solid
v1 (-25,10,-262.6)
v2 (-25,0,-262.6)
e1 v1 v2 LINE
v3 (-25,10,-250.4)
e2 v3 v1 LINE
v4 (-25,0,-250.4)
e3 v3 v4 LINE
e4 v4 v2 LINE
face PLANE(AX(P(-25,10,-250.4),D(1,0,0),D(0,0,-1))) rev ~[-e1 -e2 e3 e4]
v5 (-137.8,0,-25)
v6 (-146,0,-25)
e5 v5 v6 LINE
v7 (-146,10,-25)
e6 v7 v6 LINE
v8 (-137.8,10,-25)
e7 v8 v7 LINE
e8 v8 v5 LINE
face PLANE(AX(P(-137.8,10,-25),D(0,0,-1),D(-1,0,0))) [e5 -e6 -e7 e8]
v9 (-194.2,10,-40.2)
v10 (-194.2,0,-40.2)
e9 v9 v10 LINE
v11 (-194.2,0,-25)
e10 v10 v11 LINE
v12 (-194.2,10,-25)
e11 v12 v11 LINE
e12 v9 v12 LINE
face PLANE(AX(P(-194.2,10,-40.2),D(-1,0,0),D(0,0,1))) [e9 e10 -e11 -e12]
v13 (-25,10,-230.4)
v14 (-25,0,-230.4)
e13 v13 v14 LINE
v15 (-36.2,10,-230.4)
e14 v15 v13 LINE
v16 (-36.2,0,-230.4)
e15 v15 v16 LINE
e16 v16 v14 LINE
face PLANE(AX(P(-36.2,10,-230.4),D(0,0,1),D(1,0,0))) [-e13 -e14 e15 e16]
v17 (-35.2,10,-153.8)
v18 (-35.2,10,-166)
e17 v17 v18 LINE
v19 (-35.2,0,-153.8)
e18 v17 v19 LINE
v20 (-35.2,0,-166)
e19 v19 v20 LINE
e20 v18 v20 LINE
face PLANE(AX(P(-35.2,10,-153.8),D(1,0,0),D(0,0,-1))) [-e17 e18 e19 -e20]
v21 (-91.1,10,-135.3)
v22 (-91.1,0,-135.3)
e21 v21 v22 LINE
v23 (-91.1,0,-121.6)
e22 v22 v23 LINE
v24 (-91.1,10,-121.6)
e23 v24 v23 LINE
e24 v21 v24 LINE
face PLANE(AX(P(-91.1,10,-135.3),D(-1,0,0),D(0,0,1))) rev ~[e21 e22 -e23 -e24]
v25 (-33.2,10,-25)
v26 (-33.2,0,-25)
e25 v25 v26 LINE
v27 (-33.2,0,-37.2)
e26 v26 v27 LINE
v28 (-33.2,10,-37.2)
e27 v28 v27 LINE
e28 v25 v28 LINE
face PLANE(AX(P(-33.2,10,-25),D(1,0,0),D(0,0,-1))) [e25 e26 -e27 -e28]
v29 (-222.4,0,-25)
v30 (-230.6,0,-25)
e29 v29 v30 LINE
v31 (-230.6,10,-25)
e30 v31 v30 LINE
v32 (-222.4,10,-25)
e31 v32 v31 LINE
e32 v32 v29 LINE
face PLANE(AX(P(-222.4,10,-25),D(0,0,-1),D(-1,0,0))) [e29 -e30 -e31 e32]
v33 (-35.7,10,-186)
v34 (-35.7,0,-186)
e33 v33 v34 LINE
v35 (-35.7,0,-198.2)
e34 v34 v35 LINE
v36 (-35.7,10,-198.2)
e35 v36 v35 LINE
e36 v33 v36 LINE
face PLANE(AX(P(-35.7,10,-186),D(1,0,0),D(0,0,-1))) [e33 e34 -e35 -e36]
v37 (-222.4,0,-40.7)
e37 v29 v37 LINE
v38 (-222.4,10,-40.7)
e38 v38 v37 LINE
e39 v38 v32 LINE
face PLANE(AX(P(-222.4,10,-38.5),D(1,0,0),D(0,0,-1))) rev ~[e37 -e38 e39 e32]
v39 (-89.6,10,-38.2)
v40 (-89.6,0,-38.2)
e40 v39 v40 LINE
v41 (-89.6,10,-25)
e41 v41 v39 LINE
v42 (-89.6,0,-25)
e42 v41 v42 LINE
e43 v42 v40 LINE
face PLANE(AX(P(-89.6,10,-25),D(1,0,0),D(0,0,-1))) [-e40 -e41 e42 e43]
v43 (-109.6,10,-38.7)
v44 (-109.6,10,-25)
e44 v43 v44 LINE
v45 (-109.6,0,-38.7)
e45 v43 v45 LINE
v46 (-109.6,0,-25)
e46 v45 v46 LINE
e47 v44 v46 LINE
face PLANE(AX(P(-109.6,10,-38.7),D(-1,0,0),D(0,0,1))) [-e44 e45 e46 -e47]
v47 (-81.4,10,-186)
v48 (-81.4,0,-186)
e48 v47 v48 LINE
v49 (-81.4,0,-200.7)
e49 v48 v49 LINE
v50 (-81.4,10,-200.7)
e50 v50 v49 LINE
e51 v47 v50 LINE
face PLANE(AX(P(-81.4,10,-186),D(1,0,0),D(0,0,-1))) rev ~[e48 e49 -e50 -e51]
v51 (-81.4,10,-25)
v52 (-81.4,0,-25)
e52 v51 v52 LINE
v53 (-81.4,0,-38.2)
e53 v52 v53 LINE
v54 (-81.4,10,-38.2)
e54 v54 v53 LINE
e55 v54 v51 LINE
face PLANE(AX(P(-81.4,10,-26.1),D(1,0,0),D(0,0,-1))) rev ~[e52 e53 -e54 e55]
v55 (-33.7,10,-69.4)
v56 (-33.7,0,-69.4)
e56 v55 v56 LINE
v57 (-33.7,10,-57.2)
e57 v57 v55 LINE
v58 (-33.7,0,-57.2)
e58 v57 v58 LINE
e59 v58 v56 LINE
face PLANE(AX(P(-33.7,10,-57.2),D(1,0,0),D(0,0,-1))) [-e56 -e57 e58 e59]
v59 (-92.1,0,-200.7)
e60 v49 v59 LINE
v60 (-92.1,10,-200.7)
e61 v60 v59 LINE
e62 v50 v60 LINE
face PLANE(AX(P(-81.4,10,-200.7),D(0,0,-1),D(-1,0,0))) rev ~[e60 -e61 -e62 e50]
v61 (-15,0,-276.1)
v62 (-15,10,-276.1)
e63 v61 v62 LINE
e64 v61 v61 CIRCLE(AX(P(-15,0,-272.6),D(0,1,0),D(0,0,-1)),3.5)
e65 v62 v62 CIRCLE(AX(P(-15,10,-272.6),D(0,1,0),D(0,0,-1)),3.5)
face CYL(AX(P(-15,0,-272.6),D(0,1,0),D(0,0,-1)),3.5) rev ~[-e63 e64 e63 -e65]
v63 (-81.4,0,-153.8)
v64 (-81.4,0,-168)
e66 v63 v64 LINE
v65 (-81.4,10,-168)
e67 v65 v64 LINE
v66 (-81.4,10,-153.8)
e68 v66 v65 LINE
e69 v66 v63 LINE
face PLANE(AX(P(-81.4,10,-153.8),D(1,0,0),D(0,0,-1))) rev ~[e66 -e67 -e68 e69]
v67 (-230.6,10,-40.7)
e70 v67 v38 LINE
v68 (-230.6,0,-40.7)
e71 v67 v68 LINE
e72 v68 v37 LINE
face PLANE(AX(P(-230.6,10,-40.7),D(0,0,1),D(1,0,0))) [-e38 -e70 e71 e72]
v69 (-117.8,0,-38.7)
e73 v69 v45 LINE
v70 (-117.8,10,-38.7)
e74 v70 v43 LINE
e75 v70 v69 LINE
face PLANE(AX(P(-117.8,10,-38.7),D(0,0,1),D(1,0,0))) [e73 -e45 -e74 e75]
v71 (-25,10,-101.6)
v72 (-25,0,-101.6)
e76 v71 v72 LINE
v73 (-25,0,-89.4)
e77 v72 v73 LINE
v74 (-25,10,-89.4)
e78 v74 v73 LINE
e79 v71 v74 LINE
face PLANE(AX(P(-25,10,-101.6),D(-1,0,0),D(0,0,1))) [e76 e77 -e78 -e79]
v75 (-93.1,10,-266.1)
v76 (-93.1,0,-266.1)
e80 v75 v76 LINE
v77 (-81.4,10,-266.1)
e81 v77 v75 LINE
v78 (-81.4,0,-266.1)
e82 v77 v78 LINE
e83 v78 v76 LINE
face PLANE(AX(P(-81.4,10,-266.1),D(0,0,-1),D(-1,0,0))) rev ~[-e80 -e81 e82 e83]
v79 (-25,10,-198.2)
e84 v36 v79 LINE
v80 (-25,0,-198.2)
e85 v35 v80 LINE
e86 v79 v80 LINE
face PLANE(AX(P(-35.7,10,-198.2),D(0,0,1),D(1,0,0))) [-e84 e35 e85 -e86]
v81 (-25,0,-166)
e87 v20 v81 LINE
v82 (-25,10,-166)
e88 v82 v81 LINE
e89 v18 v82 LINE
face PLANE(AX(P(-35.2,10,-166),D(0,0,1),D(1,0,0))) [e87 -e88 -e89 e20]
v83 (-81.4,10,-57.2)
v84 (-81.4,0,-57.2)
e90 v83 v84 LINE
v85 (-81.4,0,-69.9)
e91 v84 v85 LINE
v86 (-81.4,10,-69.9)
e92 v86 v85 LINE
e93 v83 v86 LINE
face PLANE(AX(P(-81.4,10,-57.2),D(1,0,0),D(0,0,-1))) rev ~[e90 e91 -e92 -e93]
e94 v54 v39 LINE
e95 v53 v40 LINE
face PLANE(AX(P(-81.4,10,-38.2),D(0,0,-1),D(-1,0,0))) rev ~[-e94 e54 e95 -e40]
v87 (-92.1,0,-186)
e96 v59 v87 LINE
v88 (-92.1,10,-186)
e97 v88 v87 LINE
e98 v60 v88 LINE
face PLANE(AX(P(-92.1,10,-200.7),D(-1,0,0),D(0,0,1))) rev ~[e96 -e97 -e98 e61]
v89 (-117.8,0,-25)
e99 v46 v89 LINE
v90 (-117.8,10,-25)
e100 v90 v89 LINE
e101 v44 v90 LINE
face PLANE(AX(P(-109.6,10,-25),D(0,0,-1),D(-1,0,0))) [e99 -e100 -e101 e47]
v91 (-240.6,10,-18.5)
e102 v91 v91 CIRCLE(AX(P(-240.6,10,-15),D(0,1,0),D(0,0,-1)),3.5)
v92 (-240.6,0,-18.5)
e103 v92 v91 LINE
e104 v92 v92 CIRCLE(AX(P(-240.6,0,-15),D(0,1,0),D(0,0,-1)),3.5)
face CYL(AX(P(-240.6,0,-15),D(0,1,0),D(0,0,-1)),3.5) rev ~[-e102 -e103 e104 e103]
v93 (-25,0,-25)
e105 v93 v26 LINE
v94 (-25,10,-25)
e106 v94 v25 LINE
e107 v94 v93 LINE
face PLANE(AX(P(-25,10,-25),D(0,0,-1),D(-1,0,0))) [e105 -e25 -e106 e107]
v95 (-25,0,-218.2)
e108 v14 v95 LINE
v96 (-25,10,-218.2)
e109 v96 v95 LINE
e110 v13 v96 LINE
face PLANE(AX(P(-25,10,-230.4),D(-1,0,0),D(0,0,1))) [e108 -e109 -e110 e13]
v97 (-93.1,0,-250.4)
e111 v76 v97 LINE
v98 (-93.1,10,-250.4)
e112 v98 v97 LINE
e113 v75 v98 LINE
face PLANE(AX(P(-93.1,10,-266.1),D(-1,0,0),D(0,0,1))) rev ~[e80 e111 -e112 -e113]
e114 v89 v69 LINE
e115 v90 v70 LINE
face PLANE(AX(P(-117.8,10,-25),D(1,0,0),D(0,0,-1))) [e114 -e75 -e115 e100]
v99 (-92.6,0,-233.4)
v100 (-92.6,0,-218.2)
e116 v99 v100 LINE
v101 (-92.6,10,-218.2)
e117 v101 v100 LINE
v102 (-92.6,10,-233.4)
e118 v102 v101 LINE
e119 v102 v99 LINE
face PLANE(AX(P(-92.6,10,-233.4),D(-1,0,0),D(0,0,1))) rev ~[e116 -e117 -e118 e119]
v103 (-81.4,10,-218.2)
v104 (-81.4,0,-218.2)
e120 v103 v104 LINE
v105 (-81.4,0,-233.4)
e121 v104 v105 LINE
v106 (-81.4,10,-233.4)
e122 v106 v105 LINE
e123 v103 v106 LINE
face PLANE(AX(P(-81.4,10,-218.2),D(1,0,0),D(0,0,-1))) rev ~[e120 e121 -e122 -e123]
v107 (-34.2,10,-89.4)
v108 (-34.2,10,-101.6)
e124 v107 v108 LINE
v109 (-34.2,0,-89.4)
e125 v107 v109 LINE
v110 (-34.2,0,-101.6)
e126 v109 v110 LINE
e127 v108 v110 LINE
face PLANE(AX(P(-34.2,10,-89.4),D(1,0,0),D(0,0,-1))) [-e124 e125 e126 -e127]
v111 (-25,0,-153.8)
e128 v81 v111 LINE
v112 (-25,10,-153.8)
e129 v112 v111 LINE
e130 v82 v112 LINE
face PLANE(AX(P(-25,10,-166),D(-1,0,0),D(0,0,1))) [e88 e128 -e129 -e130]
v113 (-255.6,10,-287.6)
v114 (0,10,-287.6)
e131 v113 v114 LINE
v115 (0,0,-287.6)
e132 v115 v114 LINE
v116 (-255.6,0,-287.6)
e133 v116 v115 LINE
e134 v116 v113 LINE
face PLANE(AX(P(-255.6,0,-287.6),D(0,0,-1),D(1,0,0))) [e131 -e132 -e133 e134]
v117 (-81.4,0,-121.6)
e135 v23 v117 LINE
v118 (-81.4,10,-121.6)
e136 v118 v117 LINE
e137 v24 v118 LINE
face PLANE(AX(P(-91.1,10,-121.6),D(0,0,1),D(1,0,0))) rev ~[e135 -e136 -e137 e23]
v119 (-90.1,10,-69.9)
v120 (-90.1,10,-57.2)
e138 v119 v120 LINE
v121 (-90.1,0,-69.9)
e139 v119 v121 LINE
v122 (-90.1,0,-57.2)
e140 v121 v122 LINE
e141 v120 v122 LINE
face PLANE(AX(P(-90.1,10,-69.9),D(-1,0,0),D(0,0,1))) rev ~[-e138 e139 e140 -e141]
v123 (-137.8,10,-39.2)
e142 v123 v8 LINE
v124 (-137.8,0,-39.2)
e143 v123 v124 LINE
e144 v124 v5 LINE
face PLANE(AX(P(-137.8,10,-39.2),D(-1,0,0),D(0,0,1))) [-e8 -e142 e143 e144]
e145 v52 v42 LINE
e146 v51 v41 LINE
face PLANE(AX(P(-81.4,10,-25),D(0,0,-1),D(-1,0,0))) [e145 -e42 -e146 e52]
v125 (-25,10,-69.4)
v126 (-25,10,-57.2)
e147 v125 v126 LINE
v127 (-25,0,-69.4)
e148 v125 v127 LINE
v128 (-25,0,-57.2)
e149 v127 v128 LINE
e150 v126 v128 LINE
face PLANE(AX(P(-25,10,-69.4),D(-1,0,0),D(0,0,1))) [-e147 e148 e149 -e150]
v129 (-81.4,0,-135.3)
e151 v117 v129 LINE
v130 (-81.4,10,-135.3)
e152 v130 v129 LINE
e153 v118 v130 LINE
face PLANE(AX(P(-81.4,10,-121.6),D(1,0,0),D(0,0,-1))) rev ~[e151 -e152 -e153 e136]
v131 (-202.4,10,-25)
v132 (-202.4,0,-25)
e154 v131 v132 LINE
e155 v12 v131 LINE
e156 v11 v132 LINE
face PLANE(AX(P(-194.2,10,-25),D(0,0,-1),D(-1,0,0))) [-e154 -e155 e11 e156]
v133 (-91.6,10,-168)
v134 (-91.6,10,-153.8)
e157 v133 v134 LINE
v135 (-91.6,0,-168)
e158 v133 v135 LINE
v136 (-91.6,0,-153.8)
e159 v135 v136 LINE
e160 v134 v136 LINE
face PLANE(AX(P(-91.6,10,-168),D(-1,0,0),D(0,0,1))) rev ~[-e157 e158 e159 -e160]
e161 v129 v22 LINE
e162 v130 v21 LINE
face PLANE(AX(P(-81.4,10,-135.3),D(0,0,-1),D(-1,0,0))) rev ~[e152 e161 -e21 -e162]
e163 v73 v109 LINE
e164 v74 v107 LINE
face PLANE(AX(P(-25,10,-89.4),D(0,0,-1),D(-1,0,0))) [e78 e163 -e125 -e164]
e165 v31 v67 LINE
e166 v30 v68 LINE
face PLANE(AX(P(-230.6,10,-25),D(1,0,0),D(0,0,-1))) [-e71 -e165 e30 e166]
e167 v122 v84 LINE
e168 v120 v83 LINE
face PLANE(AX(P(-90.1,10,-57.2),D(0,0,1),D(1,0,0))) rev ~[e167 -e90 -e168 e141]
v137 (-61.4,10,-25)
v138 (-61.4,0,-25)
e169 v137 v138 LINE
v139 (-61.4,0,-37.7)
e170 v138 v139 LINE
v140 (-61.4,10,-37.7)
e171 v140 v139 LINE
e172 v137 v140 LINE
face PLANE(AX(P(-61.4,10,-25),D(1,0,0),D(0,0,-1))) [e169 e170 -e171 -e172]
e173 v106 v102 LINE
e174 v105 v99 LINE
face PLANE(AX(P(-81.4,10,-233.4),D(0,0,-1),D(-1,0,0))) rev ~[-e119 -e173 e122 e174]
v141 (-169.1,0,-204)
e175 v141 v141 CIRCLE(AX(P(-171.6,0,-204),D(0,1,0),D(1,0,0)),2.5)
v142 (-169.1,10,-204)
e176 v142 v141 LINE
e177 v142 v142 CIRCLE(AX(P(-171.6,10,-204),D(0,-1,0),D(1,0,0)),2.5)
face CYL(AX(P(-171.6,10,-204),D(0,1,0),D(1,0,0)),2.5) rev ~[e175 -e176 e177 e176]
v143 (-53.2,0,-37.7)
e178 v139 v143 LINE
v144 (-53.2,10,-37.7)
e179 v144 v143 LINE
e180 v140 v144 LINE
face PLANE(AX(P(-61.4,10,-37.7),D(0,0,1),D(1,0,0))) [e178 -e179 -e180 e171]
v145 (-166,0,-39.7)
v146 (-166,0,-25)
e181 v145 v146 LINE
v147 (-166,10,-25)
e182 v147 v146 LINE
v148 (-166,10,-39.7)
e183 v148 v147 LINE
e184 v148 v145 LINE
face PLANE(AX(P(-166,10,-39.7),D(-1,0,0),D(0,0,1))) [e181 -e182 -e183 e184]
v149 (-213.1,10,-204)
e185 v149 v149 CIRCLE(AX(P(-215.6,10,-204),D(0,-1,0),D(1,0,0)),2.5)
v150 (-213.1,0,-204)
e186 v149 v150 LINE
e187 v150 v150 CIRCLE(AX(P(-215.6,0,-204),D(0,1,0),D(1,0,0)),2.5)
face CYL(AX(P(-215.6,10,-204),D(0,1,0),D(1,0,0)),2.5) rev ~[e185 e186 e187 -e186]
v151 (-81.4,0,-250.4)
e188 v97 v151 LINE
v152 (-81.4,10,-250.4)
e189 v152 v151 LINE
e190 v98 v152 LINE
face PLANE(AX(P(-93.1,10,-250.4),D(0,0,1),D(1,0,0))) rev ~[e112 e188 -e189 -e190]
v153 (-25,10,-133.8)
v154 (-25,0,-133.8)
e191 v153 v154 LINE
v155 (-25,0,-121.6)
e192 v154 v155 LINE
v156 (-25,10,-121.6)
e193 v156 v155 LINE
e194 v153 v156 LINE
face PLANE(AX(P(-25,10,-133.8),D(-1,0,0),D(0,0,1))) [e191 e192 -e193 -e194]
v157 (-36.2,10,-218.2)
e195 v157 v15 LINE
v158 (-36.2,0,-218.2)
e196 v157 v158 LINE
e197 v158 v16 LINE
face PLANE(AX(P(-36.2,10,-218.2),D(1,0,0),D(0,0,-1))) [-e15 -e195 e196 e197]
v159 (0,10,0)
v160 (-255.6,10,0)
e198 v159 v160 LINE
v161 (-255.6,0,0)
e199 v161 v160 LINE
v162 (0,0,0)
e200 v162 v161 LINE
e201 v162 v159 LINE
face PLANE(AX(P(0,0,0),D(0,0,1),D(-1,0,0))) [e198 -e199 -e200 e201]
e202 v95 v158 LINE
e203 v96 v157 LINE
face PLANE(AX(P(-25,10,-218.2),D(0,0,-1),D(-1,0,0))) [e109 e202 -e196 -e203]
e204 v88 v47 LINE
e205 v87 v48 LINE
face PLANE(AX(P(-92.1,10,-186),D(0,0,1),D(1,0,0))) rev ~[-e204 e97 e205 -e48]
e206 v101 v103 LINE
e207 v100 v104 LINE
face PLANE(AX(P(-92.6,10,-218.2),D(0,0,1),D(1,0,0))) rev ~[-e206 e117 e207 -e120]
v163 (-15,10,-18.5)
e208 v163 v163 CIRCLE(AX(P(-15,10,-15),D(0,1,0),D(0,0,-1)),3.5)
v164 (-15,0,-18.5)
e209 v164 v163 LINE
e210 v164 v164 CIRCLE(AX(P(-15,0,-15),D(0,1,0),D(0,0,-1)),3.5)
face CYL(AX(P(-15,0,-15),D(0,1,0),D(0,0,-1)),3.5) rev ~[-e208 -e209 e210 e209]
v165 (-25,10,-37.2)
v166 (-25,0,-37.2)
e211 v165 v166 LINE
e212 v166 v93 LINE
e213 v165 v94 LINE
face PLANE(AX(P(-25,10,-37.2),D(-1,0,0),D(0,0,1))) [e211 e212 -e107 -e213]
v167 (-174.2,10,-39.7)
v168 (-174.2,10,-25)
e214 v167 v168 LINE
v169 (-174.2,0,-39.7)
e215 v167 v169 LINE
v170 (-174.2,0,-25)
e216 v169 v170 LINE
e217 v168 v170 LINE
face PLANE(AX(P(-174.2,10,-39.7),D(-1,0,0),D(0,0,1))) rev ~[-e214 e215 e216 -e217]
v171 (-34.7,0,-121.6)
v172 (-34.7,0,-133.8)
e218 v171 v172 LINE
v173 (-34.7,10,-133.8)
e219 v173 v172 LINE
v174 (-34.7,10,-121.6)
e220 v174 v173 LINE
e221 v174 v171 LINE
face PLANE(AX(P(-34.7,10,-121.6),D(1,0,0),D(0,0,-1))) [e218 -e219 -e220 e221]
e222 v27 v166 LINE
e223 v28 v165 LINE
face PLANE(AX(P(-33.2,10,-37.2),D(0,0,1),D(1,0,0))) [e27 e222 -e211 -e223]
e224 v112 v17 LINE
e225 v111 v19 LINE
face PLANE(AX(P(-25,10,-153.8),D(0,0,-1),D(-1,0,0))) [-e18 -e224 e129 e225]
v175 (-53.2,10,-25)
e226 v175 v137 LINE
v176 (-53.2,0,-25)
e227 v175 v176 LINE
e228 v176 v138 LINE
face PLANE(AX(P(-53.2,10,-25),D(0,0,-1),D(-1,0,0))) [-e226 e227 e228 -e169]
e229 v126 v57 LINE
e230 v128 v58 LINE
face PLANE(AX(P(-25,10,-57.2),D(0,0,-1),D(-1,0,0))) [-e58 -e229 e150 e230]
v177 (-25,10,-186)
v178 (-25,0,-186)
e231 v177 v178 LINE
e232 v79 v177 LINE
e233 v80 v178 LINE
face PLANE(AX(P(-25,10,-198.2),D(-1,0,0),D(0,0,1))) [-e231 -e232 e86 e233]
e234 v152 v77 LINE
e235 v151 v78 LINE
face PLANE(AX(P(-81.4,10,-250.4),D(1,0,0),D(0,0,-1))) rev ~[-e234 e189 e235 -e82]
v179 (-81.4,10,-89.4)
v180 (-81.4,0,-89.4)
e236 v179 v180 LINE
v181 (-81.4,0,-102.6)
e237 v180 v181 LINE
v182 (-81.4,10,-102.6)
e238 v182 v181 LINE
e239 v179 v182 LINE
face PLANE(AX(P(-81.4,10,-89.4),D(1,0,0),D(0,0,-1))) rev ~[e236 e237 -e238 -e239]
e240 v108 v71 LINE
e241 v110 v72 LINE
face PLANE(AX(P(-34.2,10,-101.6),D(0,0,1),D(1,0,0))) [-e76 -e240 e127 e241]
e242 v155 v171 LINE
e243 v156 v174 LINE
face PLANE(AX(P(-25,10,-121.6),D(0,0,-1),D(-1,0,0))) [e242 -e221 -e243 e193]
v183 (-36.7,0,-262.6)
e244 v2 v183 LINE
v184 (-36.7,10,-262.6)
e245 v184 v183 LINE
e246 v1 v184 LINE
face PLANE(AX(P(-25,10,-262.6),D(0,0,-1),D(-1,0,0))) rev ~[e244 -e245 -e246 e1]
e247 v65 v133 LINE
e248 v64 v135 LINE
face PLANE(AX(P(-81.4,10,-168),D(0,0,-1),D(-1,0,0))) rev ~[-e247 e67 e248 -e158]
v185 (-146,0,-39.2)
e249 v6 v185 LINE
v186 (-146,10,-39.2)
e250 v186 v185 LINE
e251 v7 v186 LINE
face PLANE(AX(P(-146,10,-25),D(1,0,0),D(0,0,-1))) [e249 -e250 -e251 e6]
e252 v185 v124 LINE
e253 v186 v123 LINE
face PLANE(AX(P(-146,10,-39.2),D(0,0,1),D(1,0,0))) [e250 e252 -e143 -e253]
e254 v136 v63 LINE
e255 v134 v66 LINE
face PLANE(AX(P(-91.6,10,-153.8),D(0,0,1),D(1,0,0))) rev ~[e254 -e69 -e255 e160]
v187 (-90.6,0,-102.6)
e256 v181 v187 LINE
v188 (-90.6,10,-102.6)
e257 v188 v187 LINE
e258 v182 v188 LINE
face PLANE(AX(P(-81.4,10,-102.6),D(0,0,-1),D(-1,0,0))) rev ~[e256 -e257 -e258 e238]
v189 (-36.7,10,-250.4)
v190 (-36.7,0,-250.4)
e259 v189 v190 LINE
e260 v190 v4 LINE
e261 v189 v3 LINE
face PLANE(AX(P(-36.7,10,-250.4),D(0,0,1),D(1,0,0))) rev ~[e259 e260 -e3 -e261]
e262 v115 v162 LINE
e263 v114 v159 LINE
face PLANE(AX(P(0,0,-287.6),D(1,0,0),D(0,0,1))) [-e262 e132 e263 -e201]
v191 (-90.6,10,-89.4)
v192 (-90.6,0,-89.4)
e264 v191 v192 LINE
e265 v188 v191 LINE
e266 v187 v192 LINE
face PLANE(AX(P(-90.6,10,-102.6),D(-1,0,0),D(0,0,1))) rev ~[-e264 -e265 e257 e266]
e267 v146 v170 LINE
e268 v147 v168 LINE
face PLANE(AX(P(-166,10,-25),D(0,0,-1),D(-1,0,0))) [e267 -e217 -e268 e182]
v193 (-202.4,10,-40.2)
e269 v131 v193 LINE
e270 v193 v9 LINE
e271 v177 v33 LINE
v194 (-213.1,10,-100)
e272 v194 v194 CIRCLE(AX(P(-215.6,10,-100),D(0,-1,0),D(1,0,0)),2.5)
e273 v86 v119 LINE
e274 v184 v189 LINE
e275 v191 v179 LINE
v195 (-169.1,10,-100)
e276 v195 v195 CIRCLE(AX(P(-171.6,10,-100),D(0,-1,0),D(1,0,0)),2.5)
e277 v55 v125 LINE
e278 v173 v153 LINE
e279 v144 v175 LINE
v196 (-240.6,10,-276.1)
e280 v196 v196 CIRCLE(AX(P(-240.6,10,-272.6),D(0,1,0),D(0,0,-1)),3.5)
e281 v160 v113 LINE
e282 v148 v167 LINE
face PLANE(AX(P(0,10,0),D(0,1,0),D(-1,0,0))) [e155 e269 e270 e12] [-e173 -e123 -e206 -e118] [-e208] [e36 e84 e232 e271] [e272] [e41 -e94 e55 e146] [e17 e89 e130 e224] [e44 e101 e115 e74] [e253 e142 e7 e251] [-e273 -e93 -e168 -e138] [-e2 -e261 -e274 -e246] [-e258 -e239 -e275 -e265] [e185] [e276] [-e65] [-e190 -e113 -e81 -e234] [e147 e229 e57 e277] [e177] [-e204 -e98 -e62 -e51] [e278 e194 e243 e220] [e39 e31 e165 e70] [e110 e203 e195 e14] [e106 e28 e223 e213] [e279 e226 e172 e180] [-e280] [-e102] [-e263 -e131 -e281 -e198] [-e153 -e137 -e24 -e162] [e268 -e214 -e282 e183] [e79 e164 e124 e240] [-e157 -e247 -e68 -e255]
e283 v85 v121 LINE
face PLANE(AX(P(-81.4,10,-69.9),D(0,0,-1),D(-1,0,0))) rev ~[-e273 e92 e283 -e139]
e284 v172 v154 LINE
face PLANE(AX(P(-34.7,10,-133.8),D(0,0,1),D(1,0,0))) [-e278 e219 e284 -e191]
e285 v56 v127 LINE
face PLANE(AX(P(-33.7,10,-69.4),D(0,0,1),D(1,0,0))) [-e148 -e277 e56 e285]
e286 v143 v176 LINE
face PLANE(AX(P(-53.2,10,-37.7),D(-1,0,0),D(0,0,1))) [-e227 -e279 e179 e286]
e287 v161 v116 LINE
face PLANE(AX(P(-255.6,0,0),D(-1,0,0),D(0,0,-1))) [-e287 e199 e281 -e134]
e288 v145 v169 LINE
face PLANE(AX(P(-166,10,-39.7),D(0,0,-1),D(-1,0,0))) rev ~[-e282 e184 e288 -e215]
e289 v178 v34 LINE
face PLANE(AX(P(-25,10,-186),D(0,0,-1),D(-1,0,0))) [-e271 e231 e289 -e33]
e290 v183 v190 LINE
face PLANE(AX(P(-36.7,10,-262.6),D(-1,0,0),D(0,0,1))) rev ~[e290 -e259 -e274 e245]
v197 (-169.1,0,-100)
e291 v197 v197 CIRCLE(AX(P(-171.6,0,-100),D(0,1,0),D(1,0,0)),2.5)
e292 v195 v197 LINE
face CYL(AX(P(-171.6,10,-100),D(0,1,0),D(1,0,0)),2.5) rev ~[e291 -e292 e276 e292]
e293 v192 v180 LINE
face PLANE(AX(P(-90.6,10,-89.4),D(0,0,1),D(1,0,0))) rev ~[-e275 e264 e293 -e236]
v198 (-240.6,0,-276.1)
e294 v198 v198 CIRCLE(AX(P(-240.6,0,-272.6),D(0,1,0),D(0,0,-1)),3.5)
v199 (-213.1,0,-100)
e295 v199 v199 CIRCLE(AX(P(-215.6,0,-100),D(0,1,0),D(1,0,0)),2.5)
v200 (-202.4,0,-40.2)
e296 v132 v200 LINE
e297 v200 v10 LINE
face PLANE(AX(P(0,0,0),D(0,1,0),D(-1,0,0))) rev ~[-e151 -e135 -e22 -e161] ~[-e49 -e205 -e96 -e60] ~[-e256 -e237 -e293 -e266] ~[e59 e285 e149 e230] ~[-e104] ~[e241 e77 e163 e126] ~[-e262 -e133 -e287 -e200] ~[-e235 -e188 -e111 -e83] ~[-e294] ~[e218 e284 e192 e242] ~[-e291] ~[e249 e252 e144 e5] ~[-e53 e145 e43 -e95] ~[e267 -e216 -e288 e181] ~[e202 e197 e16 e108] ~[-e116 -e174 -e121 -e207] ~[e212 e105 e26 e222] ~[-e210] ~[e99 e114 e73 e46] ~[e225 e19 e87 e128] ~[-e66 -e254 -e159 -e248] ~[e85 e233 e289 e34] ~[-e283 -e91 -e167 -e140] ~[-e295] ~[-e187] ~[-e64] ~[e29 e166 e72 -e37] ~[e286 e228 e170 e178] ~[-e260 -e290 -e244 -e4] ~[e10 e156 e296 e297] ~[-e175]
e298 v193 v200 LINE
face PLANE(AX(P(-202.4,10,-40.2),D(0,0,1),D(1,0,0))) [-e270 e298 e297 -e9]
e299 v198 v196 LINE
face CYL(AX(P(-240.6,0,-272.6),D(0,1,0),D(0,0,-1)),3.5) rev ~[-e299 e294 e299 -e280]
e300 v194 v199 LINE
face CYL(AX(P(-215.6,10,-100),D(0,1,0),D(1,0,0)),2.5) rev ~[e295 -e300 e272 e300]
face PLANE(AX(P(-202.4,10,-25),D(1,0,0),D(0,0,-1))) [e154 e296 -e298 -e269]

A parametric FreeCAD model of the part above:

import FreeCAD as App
import Part
import Sketcher

V = App.Vector
Q = App.Units.Quantity

doc = App.newDocument("Part")
body = doc.addObject("PartDesign::Body", "Body")

# Sketch on XZ plane
sketch1 = body.newObject("Sketcher::SketchObject", "Sketch")
sketch1.AttachmentSupport = (doc.getObject("XZ_Plane"), [""])
sketch1.MapMode = "FlatFace"
sketch1.addGeometry([
    Part.LineSegment(V(-255.6, 0, 0), V(0, 0, 0)),
    Part.LineSegment(V(0, 0, 0), V(0, -287.6, 0)),
    Part.LineSegment(V(0, -287.6, 0), V(-255.6, -287.6, 0)),
    Part.LineSegment(V(-255.6, -287.6, 0), V(-255.6, 0, 0)),
], False)
sketch1.addConstraint([
    Sketcher.Constraint("Coincident", 0, 2, 1, 1),
    Sketcher.Constraint("Coincident", 1, 2, 2, 1),
    Sketcher.Constraint("Coincident", 2, 2, 3, 1),
    Sketcher.Constraint("Coincident", 3, 2, 0, 1),
    Sketcher.Constraint("Horizontal", 0),
    Sketcher.Constraint("Vertical", 1),
    Sketcher.Constraint("Horizontal", 2),
    Sketcher.Constraint("Vertical", 3),
    Sketcher.Constraint("Coincident", 0, 2, -1, 1),
    Sketcher.Constraint("DistanceX", 0, 1, 0, 2, Q("255.6 mm")),
    Sketcher.Constraint("DistanceY", 1, 2, 1, 1, Q("287.6 mm")),
])
pad1 = body.newObject("PartDesign::Pad", "Pad")
pad1.Profile = sketch1
pad1.Length = 10
pad1.Reversed = True

# Sketch on XZ plane
sketch2 = body.newObject("Sketcher::SketchObject", "Sketch001")
sketch2.AttachmentSupport = (doc.getObject("XZ_Plane"), [""])
sketch2.MapMode = "FlatFace"
sketch2.AttachmentOffset = App.Placement(V(0, 0, -10), App.Rotation())
sketch2.addGeometry([
    Part.LineSegment(V(-89.6, -25, 0), V(-81.4, -25, 0)),  # 0
    Part.LineSegment(V(-81.4, -25, 0), V(-81.4, -38.2, 0)),  # 1
    Part.LineSegment(V(-81.4, -38.2, 0), V(-89.6, -38.2, 0)),  # 2
    Part.LineSegment(V(-89.6, -38.2, 0), V(-89.6, -25, 0)),  # 3
    Part.LineSegment(V(-61.4, -25, 0), V(-53.2, -25, 0)),  # 4
    Part.LineSegment(V(-53.2, -25, 0), V(-53.2, -37.7, 0)),  # 5
    Part.LineSegment(V(-53.2, -37.7, 0), V(-61.4, -37.7, 0)),  # 6
    Part.LineSegment(V(-61.4, -37.7, 0), V(-61.4, -25, 0)),  # 7
    Part.LineSegment(V(-36.7, -250.4, 0), V(-25, -250.4, 0)),  # 8
    Part.LineSegment(V(-25, -250.4, 0), V(-25, -262.6, 0)),  # 9
    Part.LineSegment(V(-25, -262.6, 0), V(-36.7, -262.6, 0)),  # 10
    Part.LineSegment(V(-36.7, -262.6, 0), V(-36.7, -250.4, 0)),  # 11
    Part.LineSegment(V(-36.2, -218.2, 0), V(-25, -218.2, 0)),  # 12
    Part.LineSegment(V(-25, -218.2, 0), V(-25, -230.4, 0)),  # 13
    Part.LineSegment(V(-25, -230.4, 0), V(-36.2, -230.4, 0)),  # 14
    Part.LineSegment(V(-36.2, -230.4, 0), V(-36.2, -218.2, 0)),  # 15
    Part.LineSegment(V(-35.7, -186, 0), V(-25, -186, 0)),  # 16
    Part.LineSegment(V(-25, -186, 0), V(-25, -198.2, 0)),  # 17
    Part.LineSegment(V(-25, -198.2, 0), V(-35.7, -198.2, 0)),  # 18
    Part.LineSegment(V(-35.7, -198.2, 0), V(-35.7, -186, 0)),  # 19
    Part.LineSegment(V(-35.2, -153.8, 0), V(-25, -153.8, 0)),  # 20
    Part.LineSegment(V(-25, -153.8, 0), V(-25, -166, 0)),  # 21
    Part.LineSegment(V(-25, -166, 0), V(-35.2, -166, 0)),  # 22
    Part.LineSegment(V(-35.2, -166, 0), V(-35.2, -153.8, 0)),  # 23
    Part.LineSegment(V(-34.7, -121.6, 0), V(-25, -121.6, 0)),  # 24
    Part.LineSegment(V(-25, -121.6, 0), V(-25, -133.8, 0)),  # 25
    Part.LineSegment(V(-25, -133.8, 0), V(-34.7, -133.8, 0)),  # 26
    Part.LineSegment(V(-34.7, -133.8, 0), V(-34.7, -121.6, 0)),  # 27
    Part.LineSegment(V(-34.2, -89.4, 0), V(-25, -89.4, 0)),  # 28
    Part.LineSegment(V(-25, -89.4, 0), V(-25, -101.6, 0)),  # 29
    Part.LineSegment(V(-25, -101.6, 0), V(-34.2, -101.6, 0)),  # 30
    Part.LineSegment(V(-34.2, -101.6, 0), V(-34.2, -89.4, 0)),  # 31
    Part.LineSegment(V(-33.7, -57.2, 0), V(-25, -57.2, 0)),  # 32
    Part.LineSegment(V(-25, -57.2, 0), V(-25, -69.4, 0)),  # 33
    Part.LineSegment(V(-25, -69.4, 0), V(-33.7, -69.4, 0)),  # 34
    Part.LineSegment(V(-33.7, -69.4, 0), V(-33.7, -57.2, 0)),  # 35
    Part.LineSegment(V(-33.2, -25, 0), V(-25, -25, 0)),  # 36
    Part.LineSegment(V(-25, -25, 0), V(-25, -37.2, 0)),  # 37
    Part.LineSegment(V(-25, -37.2, 0), V(-33.2, -37.2, 0)),  # 38
    Part.LineSegment(V(-33.2, -37.2, 0), V(-33.2, -25, 0)),  # 39
    Part.LineSegment(V(-117.8, -25, 0), V(-109.6, -25, 0)),  # 40
    Part.LineSegment(V(-109.6, -25, 0), V(-109.6, -38.7, 0)),  # 41
    Part.LineSegment(V(-109.6, -38.7, 0), V(-117.8, -38.7, 0)),  # 42
    Part.LineSegment(V(-117.8, -38.7, 0), V(-117.8, -25, 0)),  # 43
    Part.LineSegment(V(-146, -25, 0), V(-137.8, -25, 0)),  # 44
    Part.LineSegment(V(-137.8, -25, 0), V(-137.8, -39.2, 0)),  # 45
    Part.LineSegment(V(-137.8, -39.2, 0), V(-146, -39.2, 0)),  # 46
    Part.LineSegment(V(-146, -39.2, 0), V(-146, -25, 0)),  # 47
    Part.LineSegment(V(-90.1, -57.2, 0), V(-81.4, -57.2, 0)),  # 48
    Part.LineSegment(V(-81.4, -57.2, 0), V(-81.4, -69.9, 0)),  # 49
    Part.LineSegment(V(-81.4, -69.9, 0), V(-90.1, -69.9, 0)),  # 50
    Part.LineSegment(V(-90.1, -69.9, 0), V(-90.1, -57.2, 0)),  # 51
    Part.LineSegment(V(-174.2, -25, 0), V(-166, -25, 0)),  # 52
    Part.LineSegment(V(-166, -25, 0), V(-166, -39.7, 0)),  # 53
    Part.LineSegment(V(-166, -39.7, 0), V(-174.2, -39.7, 0)),  # 54
    Part.LineSegment(V(-174.2, -39.7, 0), V(-174.2, -25, 0)),  # 55
    Part.LineSegment(V(-90.6, -89.4, 0), V(-81.4, -89.4, 0)),  # 56
    Part.LineSegment(V(-81.4, -89.4, 0), V(-81.4, -102.6, 0)),  # 57
    Part.LineSegment(V(-81.4, -102.6, 0), V(-90.6, -102.6, 0)),  # 58
    Part.LineSegment(V(-90.6, -102.6, 0), V(-90.6, -89.4, 0)),  # 59
    Part.LineSegment(V(-202.4, -25, 0), V(-194.2, -25, 0)),  # 60
    Part.LineSegment(V(-194.2, -25, 0), V(-194.2, -40.2, 0)),  # 61
    Part.LineSegment(V(-194.2, -40.2, 0), V(-202.4, -40.2, 0)),  # 62
    Part.LineSegment(V(-202.4, -40.2, 0), V(-202.4, -25, 0)),  # 63
    Part.LineSegment(V(-91.1, -121.6, 0), V(-81.4, -121.6, 0)),  # 64
    Part.LineSegment(V(-81.4, -121.6, 0), V(-81.4, -135.3, 0)),  # 65
    Part.LineSegment(V(-81.4, -135.3, 0), V(-91.1, -135.3, 0)),  # 66
    Part.LineSegment(V(-91.1, -135.3, 0), V(-91.1, -121.6, 0)),  # 67
    Part.LineSegment(V(-230.6, -25, 0), V(-222.4, -25, 0)),  # 68
    Part.LineSegment(V(-222.4, -25, 0), V(-222.4, -40.7, 0)),  # 69
    Part.LineSegment(V(-222.4, -40.7, 0), V(-230.6, -40.7, 0)),  # 70
    Part.LineSegment(V(-230.6, -40.7, 0), V(-230.6, -25, 0)),  # 71
    Part.LineSegment(V(-91.6, -153.8, 0), V(-81.4, -153.8, 0)),  # 72
    Part.LineSegment(V(-81.4, -153.8, 0), V(-81.4, -168, 0)),  # 73
    Part.LineSegment(V(-81.4, -168, 0), V(-91.6, -168, 0)),  # 74
    Part.LineSegment(V(-91.6, -168, 0), V(-91.6, -153.8, 0)),  # 75
    Part.LineSegment(V(-92.1, -186, 0), V(-81.4, -186, 0)),  # 76
    Part.LineSegment(V(-81.4, -186, 0), V(-81.4, -200.7, 0)),  # 77
    Part.LineSegment(V(-81.4, -200.7, 0), V(-92.1, -200.7, 0)),  # 78
    Part.LineSegment(V(-92.1, -200.7, 0), V(-92.1, -186, 0)),  # 79
    Part.LineSegment(V(-92.6, -218.2, 0), V(-81.4, -218.2, 0)),  # 80
    Part.LineSegment(V(-81.4, -218.2, 0), V(-81.4, -233.4, 0)),  # 81
    Part.LineSegment(V(-81.4, -233.4, 0), V(-92.6, -233.4, 0)),  # 82
    Part.LineSegment(V(-92.6, -233.4, 0), V(-92.6, -218.2, 0)),  # 83
    Part.LineSegment(V(-81.4, -250.4, 0), V(-81.4, -266.1, 0)),  # 84
    Part.LineSegment(V(-81.4, -266.1, 0), V(-93.1, -266.1, 0)),  # 85
    Part.LineSegment(V(-93.1, -266.1, 0), V(-93.1, -250.4, 0)),  # 86
    Part.LineSegment(V(-93.1, -250.4, 0), V(-81.4, -250.4, 0)),  # 87
], False)
sketch2.addConstraint([
    Sketcher.Constraint("Coincident", 0, 2, 1, 1),
    Sketcher.Constraint("Coincident", 1, 2, 2, 1),
    Sketcher.Constraint("Coincident", 2, 2, 3, 1),
    Sketcher.Constraint("Coincident", 3, 2, 0, 1),
    Sketcher.Constraint("Coincident", 4, 2, 5, 1),
    Sketcher.Constraint("Coincident", 5, 2, 6, 1),
    Sketcher.Constraint("Coincident", 6, 2, 7, 1),
    Sketcher.Constraint("Coincident", 7, 2, 4, 1),
    Sketcher.Constraint("Coincident", 8, 2, 9, 1),
    Sketcher.Constraint("Coincident", 9, 2, 10, 1),
    Sketcher.Constraint("Coincident", 10, 2, 11, 1),
    Sketcher.Constraint("Coincident", 11, 2, 8, 1),
    Sketcher.Constraint("Coincident", 12, 2, 13, 1),
    Sketcher.Constraint("Coincident", 13, 2, 14, 1),
    Sketcher.Constraint("Coincident", 14, 2, 15, 1),
    Sketcher.Constraint("Coincident", 15, 2, 12, 1),
    Sketcher.Constraint("Coincident", 16, 2, 17, 1),
    Sketcher.Constraint("Coincident", 17, 2, 18, 1),
    Sketcher.Constraint("Coincident", 18, 2, 19, 1),
    Sketcher.Constraint("Coincident", 19, 2, 16, 1),
    Sketcher.Constraint("Coincident", 20, 2, 21, 1),
    Sketcher.Constraint("Coincident", 21, 2, 22, 1),
    Sketcher.Constraint("Coincident", 22, 2, 23, 1),
    Sketcher.Constraint("Coincident", 23, 2, 20, 1),
    Sketcher.Constraint("Coincident", 24, 2, 25, 1),
    Sketcher.Constraint("Coincident", 25, 2, 26, 1),
    Sketcher.Constraint("Coincident", 26, 2, 27, 1),
    Sketcher.Constraint("Coincident", 27, 2, 24, 1),
    Sketcher.Constraint("Coincident", 28, 2, 29, 1),
    Sketcher.Constraint("Coincident", 29, 2, 30, 1),
    Sketcher.Constraint("Coincident", 30, 2, 31, 1),
    Sketcher.Constraint("Coincident", 31, 2, 28, 1),
    Sketcher.Constraint("Coincident", 32, 2, 33, 1),
    Sketcher.Constraint("Coincident", 33, 2, 34, 1),
    Sketcher.Constraint("Coincident", 34, 2, 35, 1),
    Sketcher.Constraint("Coincident", 35, 2, 32, 1),
    Sketcher.Constraint("Coincident", 36, 2, 37, 1),
    Sketcher.Constraint("Coincident", 37, 2, 38, 1),
    Sketcher.Constraint("Coincident", 38, 2, 39, 1),
    Sketcher.Constraint("Coincident", 39, 2, 36, 1),
    Sketcher.Constraint("Coincident", 40, 2, 41, 1),
    Sketcher.Constraint("Coincident", 41, 2, 42, 1),
    Sketcher.Constraint("Coincident", 42, 2, 43, 1),
    Sketcher.Constraint("Coincident", 43, 2, 40, 1),
    Sketcher.Constraint("Coincident", 44, 2, 45, 1),
    Sketcher.Constraint("Coincident", 45, 2, 46, 1),
    Sketcher.Constraint("Coincident", 46, 2, 47, 1),
    Sketcher.Constraint("Coincident", 47, 2, 44, 1),
    Sketcher.Constraint("Coincident", 48, 2, 49, 1),
    Sketcher.Constraint("Coincident", 49, 2, 50, 1),
    Sketcher.Constraint("Coincident", 50, 2, 51, 1),
    Sketcher.Constraint("Coincident", 51, 2, 48, 1),
    Sketcher.Constraint("Coincident", 52, 2, 53, 1),
    Sketcher.Constraint("Coincident", 53, 2, 54, 1),
    Sketcher.Constraint("Coincident", 54, 2, 55, 1),
    Sketcher.Constraint("Coincident", 55, 2, 52, 1),
    Sketcher.Constraint("Coincident", 56, 2, 57, 1),
    Sketcher.Constraint("Coincident", 57, 2, 58, 1),
    Sketcher.Constraint("Coincident", 58, 2, 59, 1),
    Sketcher.Constraint("Coincident", 59, 2, 56, 1),
    Sketcher.Constraint("Coincident", 60, 2, 61, 1),
    Sketcher.Constraint("Coincident", 61, 2, 62, 1),
    Sketcher.Constraint("Coincident", 62, 2, 63, 1),
    Sketcher.Constraint("Coincident", 63, 2, 60, 1),
    Sketcher.Constraint("Coincident", 64, 2, 65, 1),
    Sketcher.Constraint("Coincident", 65, 2, 66, 1),
    Sketcher.Constraint("Coincident", 66, 2, 67, 1),
    Sketcher.Constraint("Coincident", 67, 2, 64, 1),
    Sketcher.Constraint("Coincident", 68, 2, 69, 1),
    Sketcher.Constraint("Coincident", 69, 2, 70, 1),
    Sketcher.Constraint("Coincident", 70, 2, 71, 1),
    Sketcher.Constraint("Coincident", 71, 2, 68, 1),
    Sketcher.Constraint("Coincident", 72, 2, 73, 1),
    Sketcher.Constraint("Coincident", 73, 2, 74, 1),
    Sketcher.Constraint("Coincident", 74, 2, 75, 1),
    Sketcher.Constraint("Coincident", 75, 2, 72, 1),
    Sketcher.Constraint("Coincident", 76, 2, 77, 1),
    Sketcher.Constraint("Coincident", 77, 2, 78, 1),
    Sketcher.Constraint("Coincident", 78, 2, 79, 1),
    Sketcher.Constraint("Coincident", 79, 2, 76, 1),
    Sketcher.Constraint("Coincident", 80, 2, 81, 1),
    Sketcher.Constraint("Coincident", 81, 2, 82, 1),
    Sketcher.Constraint("Coincident", 82, 2, 83, 1),
    Sketcher.Constraint("Coincident", 83, 2, 80, 1),
    Sketcher.Constraint("Coincident", 84, 2, 85, 1),
    Sketcher.Constraint("Coincident", 85, 2, 86, 1),
    Sketcher.Constraint("Coincident", 86, 2, 87, 1),
    Sketcher.Constraint("Coincident", 87, 2, 84, 1),
    Sketcher.Constraint("Horizontal", 0),
    Sketcher.Constraint("Vertical", 1),
    Sketcher.Constraint("Horizontal", 2),
    Sketcher.Constraint("Vertical", 3),
    Sketcher.Constraint("Horizontal", 4),
    Sketcher.Constraint("Vertical", 5),
    Sketcher.Constraint("Horizontal", 6),
    Sketcher.Constraint("Vertical", 7),
    Sketcher.Constraint("Horizontal", 8),
    Sketcher.Constraint("Vertical", 9),
    Sketcher.Constraint("Horizontal", 10),
    Sketcher.Constraint("Vertical", 11),
    Sketcher.Constraint("Horizontal", 12),
    Sketcher.Constraint("Vertical", 13),
    Sketcher.Constraint("Horizontal", 14),
    Sketcher.Constraint("Vertical", 15),
    Sketcher.Constraint("Horizontal", 16),
    Sketcher.Constraint("Vertical", 17),
    Sketcher.Constraint("Horizontal", 18),
    Sketcher.Constraint("Vertical", 19),
    Sketcher.Constraint("Horizontal", 20),
    Sketcher.Constraint("Vertical", 21),
    Sketcher.Constraint("Horizontal", 22),
    Sketcher.Constraint("Vertical", 23),
    Sketcher.Constraint("Horizontal", 24),
    Sketcher.Constraint("Vertical", 25),
    Sketcher.Constraint("Horizontal", 26),
    Sketcher.Constraint("Vertical", 27),
    Sketcher.Constraint("Horizontal", 28),
    Sketcher.Constraint("Vertical", 29),
    Sketcher.Constraint("Horizontal", 30),
    Sketcher.Constraint("Vertical", 31),
    Sketcher.Constraint("Horizontal", 32),
    Sketcher.Constraint("Vertical", 33),
    Sketcher.Constraint("Horizontal", 34),
    Sketcher.Constraint("Vertical", 35),
    Sketcher.Constraint("Horizontal", 36),
    Sketcher.Constraint("Vertical", 37),
    Sketcher.Constraint("Horizontal", 38),
    Sketcher.Constraint("Vertical", 39),
    Sketcher.Constraint("Horizontal", 40),
    Sketcher.Constraint("Vertical", 41),
    Sketcher.Constraint("Horizontal", 42),
    Sketcher.Constraint("Vertical", 43),
    Sketcher.Constraint("Horizontal", 44),
    Sketcher.Constraint("Vertical", 45),
    Sketcher.Constraint("Horizontal", 46),
    Sketcher.Constraint("Vertical", 47),
    Sketcher.Constraint("Horizontal", 48),
    Sketcher.Constraint("Vertical", 49),
    Sketcher.Constraint("Horizontal", 50),
    Sketcher.Constraint("Vertical", 51),
    Sketcher.Constraint("Horizontal", 52),
    Sketcher.Constraint("Vertical", 53),
    Sketcher.Constraint("Horizontal", 54),
    Sketcher.Constraint("Vertical", 55),
    Sketcher.Constraint("Horizontal", 56),
    Sketcher.Constraint("Vertical", 57),
    Sketcher.Constraint("Horizontal", 58),
    Sketcher.Constraint("Vertical", 59),
    Sketcher.Constraint("Horizontal", 60),
    Sketcher.Constraint("Vertical", 61),
    Sketcher.Constraint("Horizontal", 62),
    Sketcher.Constraint("Vertical", 63),
    Sketcher.Constraint("Horizontal", 64),
    Sketcher.Constraint("Vertical", 65),
    Sketcher.Constraint("Horizontal", 66),
    Sketcher.Constraint("Vertical", 67),
    Sketcher.Constraint("Horizontal", 68),
    Sketcher.Constraint("Vertical", 69),
    Sketcher.Constraint("Horizontal", 70),
    Sketcher.Constraint("Vertical", 71),
    Sketcher.Constraint("Horizontal", 72),
    Sketcher.Constraint("Vertical", 73),
    Sketcher.Constraint("Horizontal", 74),
    Sketcher.Constraint("Vertical", 75),
    Sketcher.Constraint("Horizontal", 76),
    Sketcher.Constraint("Vertical", 77),
    Sketcher.Constraint("Horizontal", 78),
    Sketcher.Constraint("Vertical", 79),
    Sketcher.Constraint("Horizontal", 80),
    Sketcher.Constraint("Vertical", 81),
    Sketcher.Constraint("Horizontal", 82),
    Sketcher.Constraint("Vertical", 83),
    Sketcher.Constraint("Vertical", 84),
    Sketcher.Constraint("Horizontal", 85),
    Sketcher.Constraint("Vertical", 86),
    Sketcher.Constraint("Horizontal", 87),
    Sketcher.Constraint("Horizontal", 3, 2, 4, 2),
    Sketcher.Constraint("Horizontal", 7, 2, 36, 2),
    Sketcher.Constraint("Horizontal", 39, 2, 40, 2),
    Sketcher.Constraint("Horizontal", 43, 2, 44, 2),
    Sketcher.Constraint("Horizontal", 35, 2, 48, 2),
    Sketcher.Constraint("Horizontal", 47, 2, 52, 2),
    Sketcher.Constraint("Horizontal", 31, 2, 56, 2),
    Sketcher.Constraint("Horizontal", 55, 2, 60, 2),
    Sketcher.Constraint("Horizontal", 27, 2, 64, 2),
    Sketcher.Constraint("Horizontal", 63, 2, 68, 2),
    Sketcher.Constraint("Horizontal", 23, 2, 72, 2),
    Sketcher.Constraint("Horizontal", 19, 2, 76, 2),
    Sketcher.Constraint("Horizontal", 15, 2, 80, 2),
    Sketcher.Constraint("Horizontal", 11, 2, 86, 2),
    Sketcher.Constraint("Vertical", 9, 2, 12, 2),
    Sketcher.Constraint("Vertical", 13, 2, 16, 2),
    Sketcher.Constraint("Vertical", 17, 2, 20, 2),
    Sketcher.Constraint("Vertical", 21, 2, 24, 2),
    Sketcher.Constraint("Vertical", 25, 2, 28, 2),
    Sketcher.Constraint("Vertical", 29, 2, 32, 2),
    Sketcher.Constraint("Vertical", 33, 2, 36, 2),
    Sketcher.Constraint("Vertical", 1, 2, 48, 2),
    Sketcher.Constraint("Vertical", 49, 2, 56, 2),
    Sketcher.Constraint("Vertical", 57, 2, 64, 2),
    Sketcher.Constraint("Vertical", 65, 2, 72, 2),
    Sketcher.Constraint("Vertical", 73, 2, 76, 2),
    Sketcher.Constraint("Vertical", 77, 2, 80, 2),
    Sketcher.Constraint("Vertical", 81, 2, 84, 2),
    Sketcher.Constraint("Equal", 2, 4),
    Sketcher.Constraint("Equal", 6, 36),
    Sketcher.Constraint("Equal", 38, 40),
    Sketcher.Constraint("Equal", 42, 44),
    Sketcher.Constraint("Equal", 34, 48),
    Sketcher.Constraint("Equal", 46, 52),
    Sketcher.Constraint("Equal", 30, 56),
    Sketcher.Constraint("Equal", 54, 60),
    Sketcher.Constraint("Equal", 26, 64),
    Sketcher.Constraint("Equal", 62, 68),
    Sketcher.Constraint("Equal", 22, 72),
    Sketcher.Constraint("Equal", 18, 76),
    Sketcher.Constraint("Equal", 14, 80),
    Sketcher.Constraint("Equal", 10, 85),
    Sketcher.Constraint("Equal", 11, 13),
    Sketcher.Constraint("Equal", 15, 17),
    Sketcher.Constraint("Equal", 19, 21),
    Sketcher.Constraint("Equal", 23, 25),
    Sketcher.Constraint("Equal", 27, 29),
    Sketcher.Constraint("Equal", 31, 33),
    Sketcher.Constraint("Equal", 35, 37),
    Sketcher.Constraint("Equal", 7, 49),
    Sketcher.Constraint("Equal", 3, 57),
    Sketcher.Constraint("Equal", 43, 65),
    Sketcher.Constraint("Equal", 47, 73),
    Sketcher.Constraint("Equal", 55, 77),
    Sketcher.Constraint("Equal", 63, 81),
    Sketcher.Constraint("Equal", 71, 84),
    Sketcher.Constraint("DistanceX", 0, 1, 0, 2, Q("8.2 mm")),
    Sketcher.Constraint("DistanceX", 8, 1, 8, 2, Q("11.7 mm")),
    Sketcher.Constraint("DistanceX", 12, 1, 12, 2, Q("11.2 mm")),
    Sketcher.Constraint("DistanceX", 16, 1, 16, 2, Q("10.7 mm")),
    Sketcher.Constraint("DistanceX", 20, 1, 20, 2, Q("10.2 mm")),
    Sketcher.Constraint("DistanceX", 24, 1, 24, 2, Q("9.7 mm")),
    Sketcher.Constraint("DistanceX", 28, 1, 28, 2, Q("9.2 mm")),
    Sketcher.Constraint("DistanceX", 32, 1, 32, 2, Q("8.7 mm")),
    Sketcher.Constraint("DistanceY", 1, 2, 1, 1, Q("13.2 mm")),
    Sketcher.Constraint("DistanceY", 5, 2, 5, 1, Q("12.7 mm")),
    Sketcher.Constraint("DistanceY", 9, 2, 9, 1, Q("12.2 mm")),
    Sketcher.Constraint("DistanceY", 41, 2, 41, 1, Q("13.7 mm")),
    Sketcher.Constraint("DistanceY", 45, 2, 45, 1, Q("14.2 mm")),
    Sketcher.Constraint("DistanceY", 53, 2, 53, 1, Q("14.7 mm")),
    Sketcher.Constraint("DistanceY", 61, 2, 61, 1, Q("15.2 mm")),
    Sketcher.Constraint("DistanceY", 69, 2, 69, 1, Q("15.7 mm")),
    Sketcher.Constraint("DistanceY", 0, 2, -1, 1, Q("25 mm")),
    Sketcher.Constraint("DistanceX", 8, 2, -1, 1, Q("25 mm")),
    Sketcher.Constraint("DistanceY", 16, 2, -1, 1, Q("186 mm")),
    Sketcher.Constraint("DistanceY", 21, 2, -1, 1, Q("166 mm")),
    Sketcher.Constraint("DistanceX", 46, 2, -1, 1, Q("146 mm")),
    Sketcher.Constraint("DistanceX", 52, 2, -1, 1, Q("166 mm")),
    Sketcher.Constraint("DistanceX", 0, 2, -1, 1, Q("81.4 mm")),
    Sketcher.Constraint("DistanceX", 4, 2, -1, 1, Q("53.2 mm")),
    Sketcher.Constraint("DistanceY", 8, 2, -1, 1, Q("250.4 mm")),
    Sketcher.Constraint("DistanceY", 12, 2, -1, 1, Q("218.2 mm")),
    Sketcher.Constraint("DistanceY", 24, 2, -1, 1, Q("121.6 mm")),
    Sketcher.Constraint("DistanceY", 28, 2, -1, 1, Q("89.4 mm")),
    Sketcher.Constraint("DistanceY", 32, 2, -1, 1, Q("57.2 mm")),
    Sketcher.Constraint("DistanceX", 40, 2, -1, 1, Q("109.6 mm")),
    Sketcher.Constraint("DistanceX", 60, 2, -1, 1, Q("194.2 mm")),
    Sketcher.Constraint("DistanceX", 68, 2, -1, 1, Q("222.4 mm")),
])
pocket1 = body.newObject("PartDesign::Pocket", "Pocket")
pocket1.Profile = sketch2
pocket1.Length = 30
pocket1.Reversed = True

# Sketch on XZ plane
sketch3 = body.newObject("Sketcher::SketchObject", "Sketch002")
sketch3.AttachmentSupport = (doc.getObject("XZ_Plane"), [""])
sketch3.MapMode = "FlatFace"
sketch3.AttachmentOffset = App.Placement(V(0, 0, -10), App.Rotation())
sketch3.addGeometry([
    Part.Circle(V(-215.6, -100, 0), V(0, 0, 1), 2.5),
    Part.Circle(V(-171.6, -100, 0), V(0, 0, 1), 2.5),
    Part.Circle(V(-215.6, -204, 0), V(0, 0, 1), 2.5),
    Part.Circle(V(-171.6, -204, 0), V(0, 0, 1), 2.5),
], False)
sketch3.addConstraint([
    Sketcher.Constraint("Equal", 0, 1),
    Sketcher.Constraint("Equal", 1, 2),
    Sketcher.Constraint("Equal", 2, 3),
    Sketcher.Constraint("Horizontal", 0, 3, 1, 3),
    Sketcher.Constraint("Horizontal", 2, 3, 3, 3),
    Sketcher.Constraint("Vertical", 0, 3, 2, 3),
    Sketcher.Constraint("Vertical", 1, 3, 3, 3),
    Sketcher.Constraint("Diameter", 0, Q("5 mm")),
    Sketcher.Constraint("DistanceY", 0, 3, -1, 1, Q("100 mm")),
    Sketcher.Constraint("DistanceX", 0, 3, 1, 3, Q("44 mm")),
    Sketcher.Constraint("DistanceY", 2, 3, 0, 3, Q("104 mm")),
    Sketcher.Constraint("DistanceX", 0, 3, -1, 1, Q("215.6 mm")),
])
pocket2 = body.newObject("PartDesign::Pocket", "Pocket001")
pocket2.Profile = sketch3
pocket2.Length = 30
pocket2.Reversed = True

# Sketch on XZ plane
sketch4 = body.newObject("Sketcher::SketchObject", "Sketch003")
sketch4.AttachmentSupport = (doc.getObject("XZ_Plane"), [""])
sketch4.MapMode = "FlatFace"
sketch4.addGeometry([
    Part.Circle(V(-240.6, -15, 0), V(0, 0, 1), 3.5),
    Part.Circle(V(-240.6, -272.6, 0), V(0, 0, 1), 3.5),
    Part.Circle(V(-15, -272.6, 0), V(0, 0, 1), 3.5),
    Part.Circle(V(-15, -15, 0), V(0, 0, 1), 3.5),
], False)
sketch4.addConstraint([
    Sketcher.Constraint("Equal", 0, 1),
    Sketcher.Constraint("Equal", 1, 2),
    Sketcher.Constraint("Equal", 2, 3),
    Sketcher.Constraint("Horizontal", 1, 3, 2, 3),
    Sketcher.Constraint("Horizontal", 0, 3, 3, 3),
    Sketcher.Constraint("Vertical", 0, 3, 1, 3),
    Sketcher.Constraint("Vertical", 2, 3, 3, 3),
    Sketcher.Constraint("Diameter", 0, Q("7 mm")),
    Sketcher.Constraint("DistanceY", 0, 3, -1, 1, Q("15 mm")),
    Sketcher.Constraint("DistanceX", 2, 3, -1, 1, Q("15 mm")),
    Sketcher.Constraint("DistanceX", 0, 3, -1, 1, Q("240.6 mm")),
    Sketcher.Constraint("DistanceY", 1, 3, -1, 1, Q("272.6 mm")),
])
doc.recompute()
hole = body.newObject("PartDesign::Hole", "Hole")
hole.Profile = sketch4
hole.ThreadType = "None"
hole.Diameter = 7
hole.DepthType = "Dimension"
hole.Depth = 10
hole.DrillPoint = "Flat"

doc.recompute()
